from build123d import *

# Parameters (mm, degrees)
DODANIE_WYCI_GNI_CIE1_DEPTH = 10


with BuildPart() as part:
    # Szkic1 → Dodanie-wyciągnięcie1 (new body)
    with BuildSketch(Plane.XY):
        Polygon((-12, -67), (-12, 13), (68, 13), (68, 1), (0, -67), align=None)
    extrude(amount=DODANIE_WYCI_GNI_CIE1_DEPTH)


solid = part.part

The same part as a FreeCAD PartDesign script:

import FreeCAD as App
import Part
import Sketcher
from FreeCAD import Vector


def add_polygon(sketch, points):
    """Adds a closed chain of lines whose ends are joined by coincident constraints."""
    first, n = sketch.GeometryCount, len(points)
    for a, b in zip(points, points[1:] + points[:1]):
        sketch.addGeometry(Part.LineSegment(App.Vector(*a, 0), App.Vector(*b, 0)), False)
    for i in range(n):
        sketch.addConstraint(Sketcher.Constraint("Coincident", first + i, 2, first + (i + 1) % n, 1))

doc = App.newDocument("Part")
params = doc.addObject("Spreadsheet::Sheet", "Params")
for row, (alias, value) in enumerate([
    ("sketch1_width", "12 mm"),
    ("sketch1_width2", "80 mm"),
    ("pad1_length", "10 mm"),
], start=1):
    params.set(f"A{row}", alias)
    params.set(f"B{row}", "=" + value)
    params.setAlias(f"B{row}", alias)

body = doc.addObject("PartDesign::Body", "Body")

# Sketch on XY plane
sketch1 = doc.addObject("Sketcher::SketchObject", "Sketch")
body.addObject(sketch1)
sketch1.AttachmentSupport = (doc.XY_Plane, [""])
sketch1.MapMode = "FlatFace"
add_polygon(sketch1, [(-12, 13), (-12, -67), (0, -67), (68, 1), (68, 13)])  # lines 0-4
sketch1.addConstraint([
    Sketcher.Constraint("Vertical", 0),
    Sketcher.Constraint("Horizontal", 1),
    Sketcher.Constraint("Vertical", 3),
    Sketcher.Constraint("Horizontal", 4),
    Sketcher.Constraint("PointOnObject", 1, 2, -2),
    Sketcher.Constraint("Equal", 4, 0),
    Sketcher.Constraint("Equal", 1, 3),
    Sketcher.Constraint("DistanceX", 1, 1, 1, 2, 12.0),
    Sketcher.Constraint("DistanceX", 4, 2, 4, 1, 80.0),
    Sketcher.Constraint("DistanceY", 0, 2, -1, 1, 67.0),
])
sketch1.setExpression("Constraints[12]", "Params.sketch1_width")
sketch1.setExpression("Constraints[13]", "Params.sketch1_width2")
pad1 = doc.addObject("PartDesign::Pad", "Pad")
body.addObject(pad1)
pad1.Profile = sketch1
pad1.setExpression("Length", "Params.pad1_length")

doc.recompute()
